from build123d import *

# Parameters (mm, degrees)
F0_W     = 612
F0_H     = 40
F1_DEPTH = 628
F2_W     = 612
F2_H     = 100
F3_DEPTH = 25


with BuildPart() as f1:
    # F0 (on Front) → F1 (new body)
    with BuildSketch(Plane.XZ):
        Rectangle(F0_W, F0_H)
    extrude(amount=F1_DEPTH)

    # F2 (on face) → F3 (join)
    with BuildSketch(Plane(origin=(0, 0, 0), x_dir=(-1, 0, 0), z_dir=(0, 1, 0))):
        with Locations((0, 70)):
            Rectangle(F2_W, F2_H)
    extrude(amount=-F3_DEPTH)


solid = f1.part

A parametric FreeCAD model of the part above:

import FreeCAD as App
import Part
import Sketcher
from FreeCAD import Vector
Q = App.Units.Quantity


def add_polygon(sketch, points):
    """Adds a closed chain of lines whose ends are joined by coincident constraints."""
    first, n = sketch.GeometryCount, len(points)
    for a, b in zip(points, points[1:] + points[:1]):
        sketch.addGeometry(Part.LineSegment(App.Vector(*a, 0), App.Vector(*b, 0)), False)
    for i in range(n):
        sketch.addConstraint(Sketcher.Constraint("Coincident", first + i, 2, first + (i + 1) % n, 1))

doc = App.newDocument("Part")
body = doc.addObject("PartDesign::Body", "Body")

# Sketch on XZ plane
sketch1 = body.newObject("Sketcher::SketchObject", "Sketch")
sketch1.AttachmentSupport = (doc.getObject("XZ_Plane"), [""])
sketch1.MapMode = "FlatFace"
add_polygon(sketch1, [(-306, 20), (-306, -20), (306, -20), (306, 20)])  # lines 0-3
sketch1.addConstraint([
    Sketcher.Constraint("Vertical", 0),
    Sketcher.Constraint("Horizontal", 1),
    Sketcher.Constraint("Vertical", 2),
    Sketcher.Constraint("Horizontal", 3),
    Sketcher.Constraint("Symmetric", 0, 2, 2, 2, -1, 1),
    Sketcher.Constraint("DistanceX", 1, 1, 1, 2, Q("612 mm")),
    Sketcher.Constraint("DistanceY", 0, 2, 0, 1, Q("40 mm")),
])
pad1 = body.newObject("PartDesign::Pad", "Pad")
pad1.Profile = sketch1
pad1.Length = 628

# Sketch on XZ plane
sketch2 = body.newObject("Sketcher::SketchObject", "Sketch001")
sketch2.AttachmentSupport = (doc.getObject("XZ_Plane"), [""])
sketch2.MapMode = "FlatFace"
add_polygon(sketch2, [(306, 120), (306, 20), (-306, 20), (-306, 120)])  # lines 0-3
sketch2.addConstraint([
    Sketcher.Constraint("Vertical", 0),
    Sketcher.Constraint("Horizontal", 1),
    Sketcher.Constraint("Vertical", 2),
    Sketcher.Constraint("Horizontal", 3),
    Sketcher.Constraint("DistanceX", 1, 2, 1, 1, Q("612 mm")),
    Sketcher.Constraint("DistanceY", 0, 2, 0, 1, Q("100 mm")),
    Sketcher.Constraint("DistanceX", -1, 1, 0, 2, Q("306 mm")),
    Sketcher.Constraint("DistanceY", -1, 1, 0, 2, Q("20 mm")),
])
pad2 = body.newObject("PartDesign::Pad", "Pad001")
pad2.Profile = sketch2
pad2.Length = 25

doc.recompute()
